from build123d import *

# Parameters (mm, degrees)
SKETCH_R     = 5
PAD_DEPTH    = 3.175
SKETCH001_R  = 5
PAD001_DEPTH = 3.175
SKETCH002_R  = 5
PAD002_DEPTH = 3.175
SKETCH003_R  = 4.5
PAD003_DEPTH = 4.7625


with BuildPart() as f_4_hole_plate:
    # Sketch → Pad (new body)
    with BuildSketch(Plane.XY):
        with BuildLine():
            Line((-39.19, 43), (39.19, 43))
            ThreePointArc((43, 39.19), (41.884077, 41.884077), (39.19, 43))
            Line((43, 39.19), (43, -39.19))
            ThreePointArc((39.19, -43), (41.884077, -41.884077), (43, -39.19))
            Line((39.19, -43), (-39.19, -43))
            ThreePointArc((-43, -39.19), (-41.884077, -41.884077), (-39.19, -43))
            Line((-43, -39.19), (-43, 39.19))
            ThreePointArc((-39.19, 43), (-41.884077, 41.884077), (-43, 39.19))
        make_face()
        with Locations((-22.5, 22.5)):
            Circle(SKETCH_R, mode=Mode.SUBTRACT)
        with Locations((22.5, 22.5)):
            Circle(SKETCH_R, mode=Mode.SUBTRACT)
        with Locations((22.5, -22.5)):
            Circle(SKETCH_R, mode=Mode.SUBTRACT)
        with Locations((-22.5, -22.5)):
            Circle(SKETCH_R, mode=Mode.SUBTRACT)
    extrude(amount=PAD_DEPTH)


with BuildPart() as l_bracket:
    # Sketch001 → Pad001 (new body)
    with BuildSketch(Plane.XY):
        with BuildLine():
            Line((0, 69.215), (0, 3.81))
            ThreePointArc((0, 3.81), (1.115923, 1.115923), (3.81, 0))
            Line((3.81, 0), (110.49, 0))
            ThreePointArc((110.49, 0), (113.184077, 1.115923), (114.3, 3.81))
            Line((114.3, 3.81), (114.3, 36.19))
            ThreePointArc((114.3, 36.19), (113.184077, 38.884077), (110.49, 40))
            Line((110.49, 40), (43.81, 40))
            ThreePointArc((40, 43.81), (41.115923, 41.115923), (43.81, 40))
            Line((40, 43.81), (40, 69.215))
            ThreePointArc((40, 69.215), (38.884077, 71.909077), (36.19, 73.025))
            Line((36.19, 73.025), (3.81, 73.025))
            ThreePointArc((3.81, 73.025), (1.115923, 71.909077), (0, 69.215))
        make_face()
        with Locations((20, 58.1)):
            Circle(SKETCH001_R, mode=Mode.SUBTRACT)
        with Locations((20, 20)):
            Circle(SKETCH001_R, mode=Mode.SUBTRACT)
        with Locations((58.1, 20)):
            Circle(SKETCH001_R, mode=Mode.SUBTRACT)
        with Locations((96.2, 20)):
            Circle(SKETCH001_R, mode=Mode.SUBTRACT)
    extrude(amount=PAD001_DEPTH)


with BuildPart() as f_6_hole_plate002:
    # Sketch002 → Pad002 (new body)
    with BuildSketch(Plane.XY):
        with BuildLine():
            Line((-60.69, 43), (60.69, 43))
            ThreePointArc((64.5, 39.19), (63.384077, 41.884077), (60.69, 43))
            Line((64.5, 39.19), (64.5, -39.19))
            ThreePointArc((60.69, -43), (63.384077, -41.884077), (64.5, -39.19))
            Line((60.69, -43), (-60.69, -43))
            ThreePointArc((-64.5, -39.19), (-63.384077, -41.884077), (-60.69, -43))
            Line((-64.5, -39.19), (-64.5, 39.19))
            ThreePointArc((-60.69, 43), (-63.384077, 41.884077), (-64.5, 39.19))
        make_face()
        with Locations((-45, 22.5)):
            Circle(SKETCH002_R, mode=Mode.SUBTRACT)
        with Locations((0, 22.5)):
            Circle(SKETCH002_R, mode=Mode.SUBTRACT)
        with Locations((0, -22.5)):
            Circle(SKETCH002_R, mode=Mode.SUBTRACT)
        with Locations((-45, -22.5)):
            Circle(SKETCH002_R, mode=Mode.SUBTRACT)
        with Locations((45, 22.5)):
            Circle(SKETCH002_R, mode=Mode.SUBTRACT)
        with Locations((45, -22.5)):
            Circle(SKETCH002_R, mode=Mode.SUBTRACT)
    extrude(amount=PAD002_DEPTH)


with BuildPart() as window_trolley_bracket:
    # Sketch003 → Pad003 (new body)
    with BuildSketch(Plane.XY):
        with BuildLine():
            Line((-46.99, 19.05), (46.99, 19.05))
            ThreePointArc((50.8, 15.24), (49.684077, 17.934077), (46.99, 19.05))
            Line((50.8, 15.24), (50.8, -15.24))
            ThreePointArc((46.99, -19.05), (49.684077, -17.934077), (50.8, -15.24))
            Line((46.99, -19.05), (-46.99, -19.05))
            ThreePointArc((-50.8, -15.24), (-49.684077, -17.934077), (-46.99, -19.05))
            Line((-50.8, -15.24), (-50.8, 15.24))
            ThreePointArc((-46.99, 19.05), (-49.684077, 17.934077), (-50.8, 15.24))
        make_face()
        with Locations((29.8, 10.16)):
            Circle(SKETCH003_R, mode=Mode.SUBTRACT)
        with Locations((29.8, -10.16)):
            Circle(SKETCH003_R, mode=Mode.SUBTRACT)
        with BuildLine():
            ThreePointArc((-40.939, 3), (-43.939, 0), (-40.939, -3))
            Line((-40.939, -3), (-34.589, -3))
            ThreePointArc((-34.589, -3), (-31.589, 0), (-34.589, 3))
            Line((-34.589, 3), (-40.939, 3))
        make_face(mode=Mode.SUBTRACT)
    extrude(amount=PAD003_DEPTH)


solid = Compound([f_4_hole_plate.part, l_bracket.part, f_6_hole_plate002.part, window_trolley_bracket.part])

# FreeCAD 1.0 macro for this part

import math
import FreeCAD as App
import Part
import Sketcher
from FreeCAD import Vector
Q = App.Units.Quantity

doc = App.newDocument("Part")
body = doc.addObject("PartDesign::Body", "Body")

# Sketch on XY plane
sketch1 = body.newObject("Sketcher::SketchObject", "Sketch")
sketch1.AttachmentSupport = (doc.getObject("XY_Plane"), [""])
sketch1.MapMode = "FlatFace"
sketch1.addGeometry([
    Part.LineSegment(Vector(39.19, 43, 0), Vector(-39.19, 43, 0)),  # 0
    Part.ArcOfCircle(Part.Circle(Vector(-39.190001, 39.190001, 0), Vector(0, 0, 1), 3.809999), math.radians(89.999992), math.radians(180.000008)),  # 1
    Part.LineSegment(Vector(-43, 39.19, 0), Vector(-43, -39.19, 0)),  # 2
    Part.ArcOfCircle(Part.Circle(Vector(-39.190001, -39.190001, 0), Vector(0, 0, 1), 3.809999), math.radians(179.999992), math.radians(270.000008)),  # 3
    Part.LineSegment(Vector(-39.19, -43, 0), Vector(39.19, -43, 0)),  # 4
    Part.ArcOfCircle(Part.Circle(Vector(39.190001, -39.190001, 0), Vector(0, 0, 1), 3.809999), math.radians(-90.000008), math.radians(0.000008)),  # 5
    Part.LineSegment(Vector(43, -39.19, 0), Vector(43, 39.19, 0)),  # 6
    Part.ArcOfCircle(Part.Circle(Vector(39.190001, 39.190001, 0), Vector(0, 0, 1), 3.809999), math.radians(-0.000008), math.radians(90.000008)),  # 7
    Part.Circle(Vector(22.5, -22.5, 0), Vector(0, 0, 1), 5),  # 8
    Part.Circle(Vector(-22.5, -22.5, 0), Vector(0, 0, 1), 5),  # 9
    Part.Circle(Vector(22.5, 22.5, 0), Vector(0, 0, 1), 5),  # 10
    Part.Circle(Vector(-22.5, 22.5, 0), Vector(0, 0, 1), 5),  # 11
], False)
sketch1.addConstraint([
    Sketcher.Constraint("Tangent", 0, 2, 1, 1),
    Sketcher.Constraint("Tangent", 1, 2, 2, 1),
    Sketcher.Constraint("Tangent", 2, 2, 3, 1),
    Sketcher.Constraint("Tangent", 3, 2, 4, 1),
    Sketcher.Constraint("Tangent", 4, 2, 5, 1),
    Sketcher.Constraint("Tangent", 5, 2, 6, 1),
    Sketcher.Constraint("Tangent", 6, 2, 7, 1),
    Sketcher.Constraint("Tangent", 7, 2, 0, 1),
    Sketcher.Constraint("Horizontal", 0),
    Sketcher.Constraint("Vertical", 2),
    Sketcher.Constraint("Horizontal", 4),
    Sketcher.Constraint("Vertical", 6),
    Sketcher.Constraint("Equal", 1, 3),
    Sketcher.Constraint("Equal", 3, 5),
    Sketcher.Constraint("Equal", 5, 7),
    Sketcher.Constraint("Equal", 8, 9),
    Sketcher.Constraint("Equal", 9, 10),
    Sketcher.Constraint("Equal", 10, 11),
    Sketcher.Constraint("Symmetric", 1, 3, 5, 3, -1, 1),
    Sketcher.Constraint("Symmetric", 9, 3, 10, 3, -1, 1),
    Sketcher.Constraint("Symmetric", 8, 3, 11, 3, -1, 1),
    Sketcher.Constraint("Symmetric", 8, 3, 9, 3, -2),
    Sketcher.Constraint("Equal", 4, 2),
    Sketcher.Constraint("Radius", 1, Q("0.15 in")),
    Sketcher.Constraint("Diameter", 8, Q("10 mm")),
    Sketcher.Constraint("DistanceX", 0, 2, 0, 1, Q("78.38 mm")),
    Sketcher.Constraint("DistanceX", -1, 1, 8, 3, Q("22.5 mm")),
    Sketcher.Constraint("DistanceY", 8, 3, -1, 1, Q("22.5 mm")),
])
pad1 = body.newObject("PartDesign::Pad", "Pad")
pad1.Profile = sketch1
pad1.Length = Q("0.125 in")
body2 = doc.addObject("PartDesign::Body", "Body001")

# Sketch on XY plane
sketch2 = body2.newObject("Sketcher::SketchObject", "Sketch001")
sketch2.AttachmentSupport = (doc.getObject("XY_Plane001"), [""])
sketch2.MapMode = "FlatFace"
sketch2.addGeometry([
    Part.LineSegment(Vector(0, 69.215, 0), Vector(0, 3.81, 0)),  # 0
    Part.ArcOfCircle(Part.Circle(Vector(3.809999, 3.809999, 0), Vector(0, 0, 1), 3.809999), math.radians(179.999992), math.radians(270.000008)),  # 1
    Part.LineSegment(Vector(3.81, 0, 0), Vector(110.49, 0, 0)),  # 2
    Part.ArcOfCircle(Part.Circle(Vector(110.490001, 3.809999, 0), Vector(0, 0, 1), 3.809999), math.radians(-90.000008), math.radians(0.000008)),  # 3
    Part.LineSegment(Vector(114.3, 3.81, 0), Vector(114.3, 36.19, 0)),  # 4
    Part.ArcOfCircle(Part.Circle(Vector(110.490001, 36.190001, 0), Vector(0, 0, 1), 3.809999), math.radians(-0.000008), math.radians(90.000008)),  # 5
    Part.LineSegment(Vector(110.49, 40, 0), Vector(43.81, 40, 0)),  # 6
    Part.ArcOfCircle(Part.Circle(Vector(43.809999, 43.809999, 0), Vector(0, 0, 1), 3.809999), math.radians(179.999992), math.radians(270.000008)),  # 7
    Part.LineSegment(Vector(40, 43.81, 0), Vector(40, 69.215, 0)),  # 8
    Part.ArcOfCircle(Part.Circle(Vector(36.190001, 69.215001, 0), Vector(0, 0, 1), 3.809999), math.radians(-0.000008), math.radians(90.000008)),  # 9
    Part.LineSegment(Vector(36.19, 73.025, 0), Vector(3.81, 73.025, 0)),  # 10
    Part.ArcOfCircle(Part.Circle(Vector(3.809999, 69.215001, 0), Vector(0, 0, 1), 3.809999), math.radians(89.999992), math.radians(180.000008)),  # 11
    Part.Circle(Vector(20, 20, 0), Vector(0, 0, 1), 5),  # 12
    Part.Circle(Vector(58.1, 20, 0), Vector(0, 0, 1), 5),  # 13
    Part.Circle(Vector(96.2, 20, 0), Vector(0, 0, 1), 5),  # 14
    Part.Circle(Vector(20, 58.1, 0), Vector(0, 0, 1), 5),  # 15
], False)
sketch2.addConstraint([
    Sketcher.Constraint("Tangent", 0, 2, 1, 1),
    Sketcher.Constraint("Tangent", 1, 2, 2, 1),
    Sketcher.Constraint("Tangent", 2, 2, 3, 1),
    Sketcher.Constraint("Tangent", 3, 2, 4, 1),
    Sketcher.Constraint("Tangent", 4, 2, 5, 1),
    Sketcher.Constraint("Tangent", 5, 2, 6, 1),
    Sketcher.Constraint("Tangent", 6, 2, 7, 2),
    Sketcher.Constraint("Tangent", 7, 1, 8, 1),
    Sketcher.Constraint("Tangent", 8, 2, 9, 1),
    Sketcher.Constraint("Tangent", 9, 2, 10, 1),
    Sketcher.Constraint("Tangent", 10, 2, 11, 1),
    Sketcher.Constraint("Tangent", 11, 2, 0, 1),
    Sketcher.Constraint("Vertical", 0),
    Sketcher.Constraint("Horizontal", 2),
    Sketcher.Constraint("Vertical", 4),
    Sketcher.Constraint("Horizontal", 6),
    Sketcher.Constraint("Vertical", 8),
    Sketcher.Constraint("Horizontal", 10),
    Sketcher.Constraint("Equal", 1, 3),
    Sketcher.Constraint("Equal", 3, 5),
    Sketcher.Constraint("Equal", 5, 7),
    Sketcher.Constraint("Equal", 7, 9),
    Sketcher.Constraint("Equal", 9, 11),
    Sketcher.Constraint("Equal", 12, 13),
    Sketcher.Constraint("Equal", 13, 14),
    Sketcher.Constraint("Equal", 14, 15),
    Sketcher.Constraint("PointOnObject", 0, 2, -2),
    Sketcher.Constraint("PointOnObject", 1, 2, -1),
    Sketcher.Constraint("Horizontal", 12, 3, 13, 3),
    Sketcher.Constraint("Horizontal", 13, 3, 14, 3),
    Sketcher.Constraint("Vertical", 12, 3, 15, 3),
    Sketcher.Constraint("Equal", 10, 4),
    Sketcher.Constraint("Radius", 1, Q("0.15 in")),
    Sketcher.Constraint("DistanceX", 2, 1, 2, 2, Q("4.2 in")),
    Sketcher.Constraint("DistanceX", 12, 3, 14, 3, Q("3 in")),
    Sketcher.Constraint("DistanceX", 12, 3, 13, 3, Q("1.5 in")),
    Sketcher.Constraint("DistanceY", 12, 3, 15, 3, Q("1.5 in")),
    Sketcher.Constraint("Diameter", 12, Q("10 mm")),
    Sketcher.Constraint("DistanceY", 0, 2, 0, 1, Q("2.575 in")),
    Sketcher.Constraint("DistanceX", 6, 2, 6, 1, Q("66.68 mm")),
    Sketcher.Constraint("DistanceX", -1, 1, 12, 3, Q("20 mm")),
    Sketcher.Constraint("DistanceY", -1, 1, 12, 3, Q("20 mm")),
])
pad2 = body2.newObject("PartDesign::Pad", "Pad001")
pad2.Profile = sketch2
pad2.Length = Q("0.125 in")
body3 = doc.addObject("PartDesign::Body", "Body002")

# Sketch on XY plane
sketch3 = body3.newObject("Sketcher::SketchObject", "Sketch002")
sketch3.AttachmentSupport = (doc.getObject("XY_Plane002"), [""])
sketch3.MapMode = "FlatFace"
sketch3.addGeometry([
    Part.LineSegment(Vector(60.69, 43, 0), Vector(-60.69, 43, 0)),  # 0
    Part.ArcOfCircle(Part.Circle(Vector(-60.690001, 39.190001, 0), Vector(0, 0, 1), 3.809999), math.radians(89.999992), math.radians(180.000008)),  # 1
    Part.LineSegment(Vector(-64.5, 39.19, 0), Vector(-64.5, -39.19, 0)),  # 2
    Part.ArcOfCircle(Part.Circle(Vector(-60.690001, -39.190001, 0), Vector(0, 0, 1), 3.809999), math.radians(179.999992), math.radians(270.000008)),  # 3
    Part.LineSegment(Vector(-60.69, -43, 0), Vector(60.69, -43, 0)),  # 4
    Part.ArcOfCircle(Part.Circle(Vector(60.690001, -39.190001, 0), Vector(0, 0, 1), 3.809999), math.radians(-90.000008), math.radians(0.000008)),  # 5
    Part.LineSegment(Vector(64.5, -39.19, 0), Vector(64.5, 39.19, 0)),  # 6
    Part.ArcOfCircle(Part.Circle(Vector(60.690001, 39.190001, 0), Vector(0, 0, 1), 3.809999), math.radians(-0.000008), math.radians(90.000008)),  # 7
    Part.Circle(Vector(45, -22.5, 0), Vector(0, 0, 1), 5),  # 8
    Part.Circle(Vector(0, -22.5, 0), Vector(0, 0, 1), 5),  # 9
    Part.Circle(Vector(-45, -22.5, 0), Vector(0, 0, 1), 5),  # 10
    Part.Circle(Vector(45, 22.5, 0), Vector(0, 0, 1), 5),  # 11
    Part.Circle(Vector(0, 22.5, 0), Vector(0, 0, 1), 5),  # 12
    Part.Circle(Vector(-45, 22.5, 0), Vector(0, 0, 1), 5),  # 13
], False)
sketch3.addConstraint([
    Sketcher.Constraint("Tangent", 0, 2, 1, 1),
    Sketcher.Constraint("Tangent", 1, 2, 2, 1),
    Sketcher.Constraint("Tangent", 2, 2, 3, 1),
    Sketcher.Constraint("Tangent", 3, 2, 4, 1),
    Sketcher.Constraint("Tangent", 4, 2, 5, 1),
    Sketcher.Constraint("Tangent", 5, 2, 6, 1),
    Sketcher.Constraint("Tangent", 6, 2, 7, 1),
    Sketcher.Constraint("Tangent", 7, 2, 0, 1),
    Sketcher.Constraint("Horizontal", 0),
    Sketcher.Constraint("Vertical", 2),
    Sketcher.Constraint("Horizontal", 4),
    Sketcher.Constraint("Vertical", 6),
    Sketcher.Constraint("Equal", 1, 3),
    Sketcher.Constraint("Equal", 3, 5),
    Sketcher.Constraint("Equal", 5, 7),
    Sketcher.Constraint("Equal", 8, 9),
    Sketcher.Constraint("Equal", 9, 10),
    Sketcher.Constraint("Equal", 10, 11),
    Sketcher.Constraint("Equal", 11, 12),
    Sketcher.Constraint("Equal", 12, 13),
    Sketcher.Constraint("Symmetric", 1, 3, 5, 3, -1, 1),
    Sketcher.Constraint("Symmetric", 10, 3, 11, 3, -1, 1),
    Sketcher.Constraint("Symmetric", 9, 3, 12, 3, -1, 1),
    Sketcher.Constraint("Symmetric", 8, 3, 13, 3, -1, 1),
    Sketcher.Constraint("Symmetric", 8, 3, 10, 3, -2),
    Sketcher.Constraint("PointOnObject", 9, 3, -2),
    Sketcher.Constraint("Horizontal", 8, 3, 9, 3),
    Sketcher.Constraint("Radius", 1, Q("0.15 in")),
    Sketcher.Constraint("Diameter", 8, Q("10 mm")),
    Sketcher.Constraint("DistanceX", 0, 2, 0, 1, Q("121.38 mm")),
    Sketcher.Constraint("DistanceY", 2, 2, 2, 1, Q("78.38 mm")),
    Sketcher.Constraint("DistanceX", -1, 1, 8, 3, Q("45 mm")),
    Sketcher.Constraint("DistanceY", 8, 3, -1, 1, Q("22.5 mm")),
])
pad3 = body3.newObject("PartDesign::Pad", "Pad002")
pad3.Profile = sketch3
pad3.Length = Q("0.125 in")
body4 = doc.addObject("PartDesign::Body", "Body003")

# Sketch on XY plane
sketch4 = body4.newObject("Sketcher::SketchObject", "Sketch003")
sketch4.AttachmentSupport = (doc.getObject("XY_Plane003"), [""])
sketch4.MapMode = "FlatFace"
sketch4.addGeometry([
    Part.LineSegment(Vector(46.99, 19.05, 0), Vector(-46.99, 19.05, 0)),  # 0
    Part.ArcOfCircle(Part.Circle(Vector(-46.990001, 15.240001, 0), Vector(0, 0, 1), 3.809999), math.radians(89.999992), math.radians(180.000008)),  # 1
    Part.LineSegment(Vector(-50.8, 15.24, 0), Vector(-50.8, -15.24, 0)),  # 2
    Part.ArcOfCircle(Part.Circle(Vector(-46.990001, -15.240001, 0), Vector(0, 0, 1), 3.809999), math.radians(179.999992), math.radians(270.000008)),  # 3
    Part.LineSegment(Vector(-46.99, -19.05, 0), Vector(46.99, -19.05, 0)),  # 4
    Part.ArcOfCircle(Part.Circle(Vector(46.990001, -15.240001, 0), Vector(0, 0, 1), 3.809999), math.radians(-90.000008), math.radians(0.000008)),  # 5
    Part.LineSegment(Vector(50.8, -15.24, 0), Vector(50.8, 15.24, 0)),  # 6
    Part.ArcOfCircle(Part.Circle(Vector(46.990001, 15.240001, 0), Vector(0, 0, 1), 3.809999), math.radians(-0.000008), math.radians(90.000008)),  # 7
    Part.Circle(Vector(29.8, -10.16, 0), Vector(0, 0, 1), 4.5),  # 8
    Part.Circle(Vector(29.8, 10.16, 0), Vector(0, 0, 1), 4.5),  # 9
    Part.LineSegment(Vector(-40.939, 3, 0), Vector(-34.589, 3, 0)),  # 10
    Part.ArcOfCircle(Part.Circle(Vector(-34.589, 0, 0), Vector(0, 0, 1), 3), math.radians(-90), math.radians(90)),  # 11
    Part.LineSegment(Vector(-34.589, -3, 0), Vector(-40.939, -3, 0)),  # 12
    Part.ArcOfCircle(Part.Circle(Vector(-40.939, 0, 0), Vector(0, 0, 1), 3), math.radians(90), math.radians(270)),  # 13
], False)
sketch4.addConstraint([
    Sketcher.Constraint("Tangent", 0, 2, 1, 1),
    Sketcher.Constraint("Tangent", 1, 2, 2, 1),
    Sketcher.Constraint("Tangent", 2, 2, 3, 1),
    Sketcher.Constraint("Tangent", 3, 2, 4, 1),
    Sketcher.Constraint("Tangent", 4, 2, 5, 1),
    Sketcher.Constraint("Tangent", 5, 2, 6, 1),
    Sketcher.Constraint("Tangent", 6, 2, 7, 1),
    Sketcher.Constraint("Tangent", 7, 2, 0, 1),
    Sketcher.Constraint("Tangent", 10, 2, 11, 2),
    Sketcher.Constraint("Tangent", 11, 1, 12, 1),
    Sketcher.Constraint("Tangent", 12, 2, 13, 2),
    Sketcher.Constraint("Tangent", 13, 1, 10, 1),
    Sketcher.Constraint("Horizontal", 0),
    Sketcher.Constraint("Vertical", 2),
    Sketcher.Constraint("Horizontal", 4),
    Sketcher.Constraint("Vertical", 6),
    Sketcher.Constraint("Horizontal", 10),
    Sketcher.Constraint("Horizontal", 12),
    Sketcher.Constraint("Equal", 1, 3),
    Sketcher.Constraint("Equal", 3, 5),
    Sketcher.Constraint("Equal", 5, 7),
    Sketcher.Constraint("Equal", 8, 9),
    Sketcher.Constraint("Symmetric", 1, 3, 5, 3, -1, 1),
    Sketcher.Constraint("Symmetric", 8, 3, 9, 3, -1),
    Sketcher.Constraint("PointOnObject", 11, 3, -1),
    Sketcher.Constraint("Radius", 1, Q("0.15 in")),
    Sketcher.Constraint("DistanceX", 0, 2, 0, 1, Q("3.7 in")),
    Sketcher.Constraint("DistanceY", 2, 2, 2, 1, Q("1.2 in")),
    Sketcher.Constraint("DistanceY", 8, 3, 7, 3, Q("1 in")),
    Sketcher.Constraint("DistanceX", 10, 1, 10, 2, Q("0.25 in")),
    Sketcher.Constraint("Diameter", 8, Q("9 mm")),
    Sketcher.Constraint("Radius", 11, Q("3 mm")),
    Sketcher.Constraint("DistanceX", 11, 3, 8, 3, Q("2.535 in")),
    Sketcher.Constraint("DistanceX", -1, 1, 8, 3, Q("29.8 mm")),
])
pad4 = body4.newObject("PartDesign::Pad", "Pad003")
pad4.Profile = sketch4
pad4.Length = Q("0.1875 in")

doc.recompute()
